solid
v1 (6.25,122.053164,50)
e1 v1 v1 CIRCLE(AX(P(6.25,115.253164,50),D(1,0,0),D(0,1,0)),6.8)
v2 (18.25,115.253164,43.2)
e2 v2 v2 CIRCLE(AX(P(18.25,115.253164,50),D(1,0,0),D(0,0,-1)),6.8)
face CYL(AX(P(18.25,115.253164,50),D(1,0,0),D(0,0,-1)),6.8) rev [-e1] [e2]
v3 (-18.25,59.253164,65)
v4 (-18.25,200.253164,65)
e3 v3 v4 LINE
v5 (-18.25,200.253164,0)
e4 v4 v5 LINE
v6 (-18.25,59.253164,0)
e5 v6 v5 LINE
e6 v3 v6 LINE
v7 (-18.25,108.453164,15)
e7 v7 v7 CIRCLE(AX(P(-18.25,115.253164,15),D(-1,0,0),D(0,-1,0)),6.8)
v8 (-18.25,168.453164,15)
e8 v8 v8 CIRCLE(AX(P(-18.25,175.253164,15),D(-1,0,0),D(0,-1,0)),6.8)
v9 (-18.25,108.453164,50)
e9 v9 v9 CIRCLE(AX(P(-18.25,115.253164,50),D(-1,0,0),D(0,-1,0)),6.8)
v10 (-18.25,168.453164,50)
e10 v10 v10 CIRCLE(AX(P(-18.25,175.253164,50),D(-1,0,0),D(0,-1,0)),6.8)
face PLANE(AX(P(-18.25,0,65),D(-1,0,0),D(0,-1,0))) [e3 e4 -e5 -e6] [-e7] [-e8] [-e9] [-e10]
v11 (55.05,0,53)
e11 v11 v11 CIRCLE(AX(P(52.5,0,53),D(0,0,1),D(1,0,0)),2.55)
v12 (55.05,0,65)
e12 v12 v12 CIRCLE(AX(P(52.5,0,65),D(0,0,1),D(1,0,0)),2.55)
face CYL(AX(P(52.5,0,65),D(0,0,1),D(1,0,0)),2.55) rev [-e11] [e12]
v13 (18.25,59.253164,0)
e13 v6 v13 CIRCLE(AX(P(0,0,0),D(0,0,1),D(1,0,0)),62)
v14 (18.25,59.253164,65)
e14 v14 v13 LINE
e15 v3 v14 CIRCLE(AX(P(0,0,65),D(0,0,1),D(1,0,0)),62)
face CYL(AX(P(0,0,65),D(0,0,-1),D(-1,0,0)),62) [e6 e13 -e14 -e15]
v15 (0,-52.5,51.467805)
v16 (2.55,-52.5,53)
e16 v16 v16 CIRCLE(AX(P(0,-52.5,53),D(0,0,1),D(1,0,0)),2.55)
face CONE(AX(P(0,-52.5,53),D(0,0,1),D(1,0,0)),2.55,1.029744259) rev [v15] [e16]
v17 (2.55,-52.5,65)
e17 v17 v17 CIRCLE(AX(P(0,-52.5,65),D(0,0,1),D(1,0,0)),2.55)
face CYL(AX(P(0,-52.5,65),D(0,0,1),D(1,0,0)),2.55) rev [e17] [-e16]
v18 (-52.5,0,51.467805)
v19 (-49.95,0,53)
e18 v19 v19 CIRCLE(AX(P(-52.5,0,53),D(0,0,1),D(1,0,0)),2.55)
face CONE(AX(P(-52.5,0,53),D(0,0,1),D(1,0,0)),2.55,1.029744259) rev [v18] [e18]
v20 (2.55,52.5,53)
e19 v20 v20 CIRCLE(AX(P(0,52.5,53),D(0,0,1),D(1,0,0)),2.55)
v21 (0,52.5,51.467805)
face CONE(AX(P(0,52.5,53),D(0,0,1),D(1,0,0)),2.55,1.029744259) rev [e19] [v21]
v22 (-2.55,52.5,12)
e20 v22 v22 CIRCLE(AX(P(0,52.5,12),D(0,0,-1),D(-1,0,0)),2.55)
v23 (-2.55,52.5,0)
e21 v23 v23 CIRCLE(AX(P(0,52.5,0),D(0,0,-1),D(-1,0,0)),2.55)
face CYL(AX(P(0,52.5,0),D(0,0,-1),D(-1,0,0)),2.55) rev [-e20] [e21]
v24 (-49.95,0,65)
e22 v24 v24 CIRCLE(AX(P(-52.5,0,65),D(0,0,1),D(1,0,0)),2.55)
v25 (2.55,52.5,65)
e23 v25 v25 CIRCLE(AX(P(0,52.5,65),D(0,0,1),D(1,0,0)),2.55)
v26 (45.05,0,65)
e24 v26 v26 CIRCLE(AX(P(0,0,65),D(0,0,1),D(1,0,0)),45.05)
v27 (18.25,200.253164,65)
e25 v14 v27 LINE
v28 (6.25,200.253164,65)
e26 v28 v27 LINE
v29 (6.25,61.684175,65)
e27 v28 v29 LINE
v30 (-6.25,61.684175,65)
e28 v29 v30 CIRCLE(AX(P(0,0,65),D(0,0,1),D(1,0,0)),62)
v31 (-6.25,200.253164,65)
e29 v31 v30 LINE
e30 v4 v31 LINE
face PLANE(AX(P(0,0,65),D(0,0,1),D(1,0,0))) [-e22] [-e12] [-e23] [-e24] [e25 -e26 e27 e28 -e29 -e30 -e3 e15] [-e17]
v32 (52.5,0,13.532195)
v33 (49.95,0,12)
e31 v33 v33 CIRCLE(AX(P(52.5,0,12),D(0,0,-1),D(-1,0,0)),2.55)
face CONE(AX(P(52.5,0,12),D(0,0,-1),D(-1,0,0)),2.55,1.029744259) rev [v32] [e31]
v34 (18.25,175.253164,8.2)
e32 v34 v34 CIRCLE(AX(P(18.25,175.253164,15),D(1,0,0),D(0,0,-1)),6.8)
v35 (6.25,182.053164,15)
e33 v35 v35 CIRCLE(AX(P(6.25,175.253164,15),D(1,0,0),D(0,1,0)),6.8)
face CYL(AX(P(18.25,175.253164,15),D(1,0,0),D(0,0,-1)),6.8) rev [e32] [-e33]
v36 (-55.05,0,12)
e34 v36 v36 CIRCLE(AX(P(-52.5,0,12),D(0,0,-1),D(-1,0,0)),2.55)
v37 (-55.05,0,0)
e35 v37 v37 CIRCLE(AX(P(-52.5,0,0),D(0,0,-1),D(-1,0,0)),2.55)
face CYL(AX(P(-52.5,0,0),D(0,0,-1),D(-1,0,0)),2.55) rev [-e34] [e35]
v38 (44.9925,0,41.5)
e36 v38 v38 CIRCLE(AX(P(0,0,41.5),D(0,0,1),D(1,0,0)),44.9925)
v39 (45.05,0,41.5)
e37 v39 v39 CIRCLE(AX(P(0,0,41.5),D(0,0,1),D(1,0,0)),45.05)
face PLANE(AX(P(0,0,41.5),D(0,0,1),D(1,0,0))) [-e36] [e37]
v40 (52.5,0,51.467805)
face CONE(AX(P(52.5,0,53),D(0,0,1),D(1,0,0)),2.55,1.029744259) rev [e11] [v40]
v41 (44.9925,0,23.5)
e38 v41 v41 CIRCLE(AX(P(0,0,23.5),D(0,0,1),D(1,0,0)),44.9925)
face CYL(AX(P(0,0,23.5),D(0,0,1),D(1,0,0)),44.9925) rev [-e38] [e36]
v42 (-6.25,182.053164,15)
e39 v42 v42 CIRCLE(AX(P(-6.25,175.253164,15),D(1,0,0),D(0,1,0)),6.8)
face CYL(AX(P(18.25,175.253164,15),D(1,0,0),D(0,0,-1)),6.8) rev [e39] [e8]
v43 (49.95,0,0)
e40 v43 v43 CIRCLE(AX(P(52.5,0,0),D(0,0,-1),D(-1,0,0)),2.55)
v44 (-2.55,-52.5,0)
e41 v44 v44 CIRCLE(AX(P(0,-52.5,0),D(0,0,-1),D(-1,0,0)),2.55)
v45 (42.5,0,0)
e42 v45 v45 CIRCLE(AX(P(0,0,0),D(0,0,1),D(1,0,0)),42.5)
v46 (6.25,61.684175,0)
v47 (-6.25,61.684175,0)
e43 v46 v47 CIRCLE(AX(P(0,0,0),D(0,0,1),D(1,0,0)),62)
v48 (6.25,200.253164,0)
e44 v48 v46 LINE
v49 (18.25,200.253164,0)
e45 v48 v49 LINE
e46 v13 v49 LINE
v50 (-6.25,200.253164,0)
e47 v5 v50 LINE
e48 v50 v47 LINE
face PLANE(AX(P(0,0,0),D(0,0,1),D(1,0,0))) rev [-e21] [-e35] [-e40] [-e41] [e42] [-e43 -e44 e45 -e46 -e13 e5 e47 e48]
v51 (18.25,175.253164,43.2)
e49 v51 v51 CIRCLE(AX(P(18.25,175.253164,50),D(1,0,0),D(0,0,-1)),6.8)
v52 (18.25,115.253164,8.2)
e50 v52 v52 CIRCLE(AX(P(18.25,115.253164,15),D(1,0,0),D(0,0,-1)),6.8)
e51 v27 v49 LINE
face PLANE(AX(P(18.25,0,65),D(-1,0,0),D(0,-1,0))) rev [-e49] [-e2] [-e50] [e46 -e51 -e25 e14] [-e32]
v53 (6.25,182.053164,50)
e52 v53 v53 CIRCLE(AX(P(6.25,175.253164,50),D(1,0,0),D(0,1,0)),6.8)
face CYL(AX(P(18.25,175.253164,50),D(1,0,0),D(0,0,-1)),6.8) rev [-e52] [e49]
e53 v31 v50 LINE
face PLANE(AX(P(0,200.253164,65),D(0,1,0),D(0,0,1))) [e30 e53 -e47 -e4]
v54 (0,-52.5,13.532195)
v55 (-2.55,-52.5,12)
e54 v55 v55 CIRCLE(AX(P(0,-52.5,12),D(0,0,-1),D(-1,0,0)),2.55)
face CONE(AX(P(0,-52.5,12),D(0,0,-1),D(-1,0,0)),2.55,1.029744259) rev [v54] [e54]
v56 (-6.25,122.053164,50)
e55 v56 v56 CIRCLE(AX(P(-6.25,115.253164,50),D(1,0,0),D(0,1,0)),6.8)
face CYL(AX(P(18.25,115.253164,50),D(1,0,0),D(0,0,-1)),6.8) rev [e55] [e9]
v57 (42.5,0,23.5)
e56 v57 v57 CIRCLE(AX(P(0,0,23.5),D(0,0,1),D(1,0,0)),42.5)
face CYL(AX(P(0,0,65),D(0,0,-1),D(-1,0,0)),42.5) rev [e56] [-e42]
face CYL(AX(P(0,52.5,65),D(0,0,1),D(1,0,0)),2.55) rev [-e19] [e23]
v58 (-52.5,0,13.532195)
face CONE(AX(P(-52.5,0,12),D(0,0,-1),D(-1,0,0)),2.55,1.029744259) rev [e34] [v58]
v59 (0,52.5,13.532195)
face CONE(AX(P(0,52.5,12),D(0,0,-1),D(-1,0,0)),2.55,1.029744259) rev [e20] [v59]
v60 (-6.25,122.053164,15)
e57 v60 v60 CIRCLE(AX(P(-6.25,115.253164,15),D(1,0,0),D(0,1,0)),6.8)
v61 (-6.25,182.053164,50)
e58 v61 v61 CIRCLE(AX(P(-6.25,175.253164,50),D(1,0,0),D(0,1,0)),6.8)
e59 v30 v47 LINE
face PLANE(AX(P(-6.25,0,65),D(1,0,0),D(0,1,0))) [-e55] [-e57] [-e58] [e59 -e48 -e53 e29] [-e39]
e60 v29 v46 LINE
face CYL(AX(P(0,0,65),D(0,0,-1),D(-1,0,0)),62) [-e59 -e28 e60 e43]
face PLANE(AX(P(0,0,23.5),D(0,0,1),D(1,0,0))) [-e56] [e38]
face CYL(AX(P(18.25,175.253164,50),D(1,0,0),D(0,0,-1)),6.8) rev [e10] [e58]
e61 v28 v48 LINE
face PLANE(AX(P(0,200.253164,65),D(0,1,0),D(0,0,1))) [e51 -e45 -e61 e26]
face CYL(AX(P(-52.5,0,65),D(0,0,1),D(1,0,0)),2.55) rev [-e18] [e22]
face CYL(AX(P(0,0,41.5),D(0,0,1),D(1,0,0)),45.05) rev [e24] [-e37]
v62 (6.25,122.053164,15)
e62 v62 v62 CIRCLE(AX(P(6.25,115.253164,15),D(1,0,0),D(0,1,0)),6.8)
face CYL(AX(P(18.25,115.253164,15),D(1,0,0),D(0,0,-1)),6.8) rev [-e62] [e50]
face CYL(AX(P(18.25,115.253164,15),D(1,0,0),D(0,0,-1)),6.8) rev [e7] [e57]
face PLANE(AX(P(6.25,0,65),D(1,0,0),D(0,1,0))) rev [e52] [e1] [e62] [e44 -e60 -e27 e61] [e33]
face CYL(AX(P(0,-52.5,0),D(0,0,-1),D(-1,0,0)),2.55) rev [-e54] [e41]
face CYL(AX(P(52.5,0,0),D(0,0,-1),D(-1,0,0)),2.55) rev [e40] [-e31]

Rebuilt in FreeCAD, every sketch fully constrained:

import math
import FreeCAD as App
import Part
import Sketcher
from FreeCAD import Vector
Q = App.Units.Quantity

doc = App.newDocument("Part")
body = doc.addObject("PartDesign::Body", "Body")

sketch1 = body.newObject("Sketcher::SketchObject", "Sketch")
sketch1.AttachmentSupport = (doc.getObject("XY_Plane"), [""])
sketch1.MapMode = "FlatFace"
sketch1.addGeometry([
    Part.LineSegment(Vector(6, 200, 0), Vector(6, 62, 0)),
    Part.ArcOfCircle(Part.Circle(Vector(0, 0, 0), Vector(0, 0, 1), 62), math.radians(84.21), math.radians(95.79)),
    Part.LineSegment(Vector(-6, 62, 0), Vector(-6, 200, 0)),
    Part.LineSegment(Vector(-6, 200, 0), Vector(-18, 200, 0)),
    Part.LineSegment(Vector(-18, 200, 0), Vector(-18, 59, 0)),
    Part.ArcOfCircle(Part.Circle(Vector(0, 0, 0), Vector(0, 0, 1), 62), math.radians(107), math.radians(433)),
    Part.LineSegment(Vector(18, 59, 0), Vector(18, 200, 0)),
    Part.LineSegment(Vector(18, 200, 0), Vector(6, 200, 0)),
    Part.Circle(Vector(0, 0, 0), Vector(0, 0, 1), 42),
], False)
sketch1.addConstraint([
    Sketcher.Constraint("Coincident", 0, 2, 1, 1),
    Sketcher.Constraint("Coincident", 1, 2, 2, 1),
    Sketcher.Constraint("Coincident", 2, 2, 3, 1),
    Sketcher.Constraint("Coincident", 3, 2, 4, 1),
    Sketcher.Constraint("Coincident", 4, 2, 5, 1),
    Sketcher.Constraint("Coincident", 5, 2, 6, 1),
    Sketcher.Constraint("Coincident", 6, 2, 7, 1),
    Sketcher.Constraint("Coincident", 7, 2, 0, 1),
    Sketcher.Constraint("Vertical", 0),
    Sketcher.Constraint("Vertical", 2),
    Sketcher.Constraint("Horizontal", 3),
    Sketcher.Constraint("Vertical", 4),
    Sketcher.Constraint("Vertical", 6),
    Sketcher.Constraint("Horizontal", 7),
    Sketcher.Constraint("Coincident", 1, 3, -1, 1),
    Sketcher.Constraint("Coincident", 5, 3, -1, 1),
    Sketcher.Constraint("Coincident", 8, 3, -1, 1),
    Sketcher.Constraint("Equal", 1, 5),
    Sketcher.Constraint("Symmetric", 3, 2, 6, 2, -2),
    Sketcher.Constraint("Horizontal", 0, 2, 1, 2),
    Sketcher.Constraint("Diameter", 8, Q("85 mm")),
    Sketcher.Constraint("Radius", 1, Q("62 mm")),
    Sketcher.Constraint("DistanceX", 3, 2, 3, 1, Q("12 mm")),
    Sketcher.Constraint("DistanceY", 4, 2, 4, 1, Q("141 mm")),
    Sketcher.Constraint("DistanceX", 1, 2, 0, 2, Q("12.5 mm")),
])
pad1 = body.newObject("PartDesign::Pad", "Pad")
pad1.Profile = sketch1
pad1.Length = 65

sketch2 = body.newObject("Sketcher::SketchObject", "Sketch001")
sketch2.AttachmentSupport = (doc.getObject("XY_Plane"), [""])
sketch2.MapMode = "FlatFace"
sketch2.AttachmentOffset = App.Placement(Vector(0, 0, 65), App.Rotation())
sketch2.addGeometry(Part.Circle(Vector(0, 0, 0), Vector(0, 0, 1), 45), False)
sketch2.addConstraint([
    Sketcher.Constraint("Coincident", 0, 3, -1, 1),
    Sketcher.Constraint("Diameter", 0, Q("90.1 mm")),
])
pocket1 = body.newObject("PartDesign::Pocket", "Pocket")
pocket1.Profile = sketch2
pocket1.Length = 23.5

sketch3 = body.newObject("Sketcher::SketchObject", "Sketch002")
sketch3.AttachmentSupport = (doc.getObject("XY_Plane"), [""])
sketch3.MapMode = "FlatFace"
sketch3.AttachmentOffset = App.Placement(Vector(0, 0, 41.5), App.Rotation())
sketch3.addGeometry(Part.Circle(Vector(0, 0, 0), Vector(0, 0, 1), 45), False)
sketch3.addConstraint([
    Sketcher.Constraint("Coincident", 0, 3, -1, 1),
    Sketcher.Constraint("Diameter", 0, Q("89.985 mm")),
])
pocket2 = body.newObject("PartDesign::Pocket", "Pocket001")
pocket2.Profile = sketch3
pocket2.Length = 18

sketch4 = body.newObject("Sketcher::SketchObject", "Sketch003")
sketch4.AttachmentSupport = (doc.getObject("XY_Plane"), [""])
sketch4.MapMode = "FlatFace"
sketch4.AttachmentOffset = App.Placement(Vector(0, 0, 65), App.Rotation())
sketch4.addGeometry([
    Part.Circle(Vector(0, -52.5, 0), Vector(0, 0, 1), 2.5),
    Part.Circle(Vector(-52.5, 0, 0), Vector(0, 0, 1), 2.5),
    Part.Circle(Vector(0, 52.5, 0), Vector(0, 0, 1), 2.5),
    Part.Circle(Vector(52.5, 0, 0), Vector(0, 0, 1), 2.5),
], False)
sketch4.addConstraint([
    Sketcher.Constraint("Equal", 0, 1),
    Sketcher.Constraint("Equal", 1, 2),
    Sketcher.Constraint("Equal", 2, 3),
    Sketcher.Constraint("Symmetric", 0, 3, 2, 3, -1, 1),
    Sketcher.Constraint("Symmetric", 1, 3, 3, 3, -1, 1),
    Sketcher.Constraint("PointOnObject", 0, 3, -2),
    Sketcher.Constraint("PointOnObject", 1, 3, -1),
    Sketcher.Constraint("Diameter", 0, Q("5.1 mm")),
    Sketcher.Constraint("DistanceY", 0, 3, 2, 3, Q("105 mm")),
    Sketcher.Constraint("DistanceX", 1, 3, 3, 3, Q("105 mm")),
])
doc.recompute()
hole = body.newObject("PartDesign::Hole", "Hole")
hole.Profile = sketch4
hole.ThreadType = "None"
hole.Diameter = 5.1
hole.DepthType = "Dimension"
hole.Depth = 12
hole.DrillPoint = "Angled"
hole.DrillPointAngle = 118

sketch5 = body.newObject("Sketcher::SketchObject", "Sketch004")
sketch5.AttachmentSupport = (doc.getObject("XY_Plane"), [""])
sketch5.MapMode = "FlatFace"
sketch5.addGeometry([
    Part.Circle(Vector(52.5, 0, 0), Vector(0, 0, 1), 2.5),
    Part.Circle(Vector(0, 52.5, 0), Vector(0, 0, 1), 2.5),
    Part.Circle(Vector(-52.5, 0, 0), Vector(0, 0, 1), 2.5),
    Part.Circle(Vector(0, -52.5, 0), Vector(0, 0, 1), 2.5),
], False)
sketch5.addConstraint([
    Sketcher.Constraint("Equal", 0, 1),
    Sketcher.Constraint("Equal", 1, 2),
    Sketcher.Constraint("Equal", 2, 3),
    Sketcher.Constraint("Symmetric", 0, 3, 2, 3, -1, 1),
    Sketcher.Constraint("Symmetric", 1, 3, 3, 3, -1, 1),
    Sketcher.Constraint("PointOnObject", 0, 3, -1),
    Sketcher.Constraint("PointOnObject", 1, 3, -2),
    Sketcher.Constraint("Diameter", 0, Q("5.1 mm")),
    Sketcher.Constraint("DistanceX", 2, 3, 0, 3, Q("105 mm")),
    Sketcher.Constraint("DistanceY", 3, 3, 1, 3, Q("105 mm")),
])
doc.recompute()
hole2 = body.newObject("PartDesign::Hole", "Hole001")
hole2.Profile = sketch5
hole2.ThreadType = "None"
hole2.Diameter = 5.1
hole2.DepthType = "Dimension"
hole2.Depth = 12
hole2.DrillPoint = "Angled"
hole2.DrillPointAngle = 118
hole2.Reversed = True

sketch6 = body.newObject("Sketcher::SketchObject", "Sketch005")
sketch6.AttachmentSupport = (doc.getObject("YZ_Plane"), [""])
sketch6.MapMode = "FlatFace"
sketch6.AttachmentOffset = App.Placement(Vector(0, 0, 18.25), App.Rotation())
sketch6.addGeometry([
    Part.Circle(Vector(175, 50, 0), Vector(0, 0, 1), 7),
    Part.Circle(Vector(175, 15, 0), Vector(0, 0, 1), 7),
    Part.Circle(Vector(115, 15, 0), Vector(0, 0, 1), 7),
    Part.Circle(Vector(115, 50, 0), Vector(0, 0, 1), 7),
], False)
sketch6.addConstraint([
    Sketcher.Constraint("Equal", 0, 1),
    Sketcher.Constraint("Equal", 1, 2),
    Sketcher.Constraint("Equal", 2, 3),
    Sketcher.Constraint("Horizontal", 1, 3, 2, 3),
    Sketcher.Constraint("Horizontal", 0, 3, 3, 3),
    Sketcher.Constraint("Vertical", 0, 3, 1, 3),
    Sketcher.Constraint("Vertical", 2, 3, 3, 3),
    Sketcher.Constraint("Diameter", 0, Q("13.6 mm")),
    Sketcher.Constraint("DistanceY", -1, 1, 0, 3, Q("50 mm")),
    Sketcher.Constraint("DistanceY", -1, 1, 1, 3, Q("15 mm")),
    Sketcher.Constraint("DistanceX", 2, 3, 1, 3, Q("60 mm")),
    Sketcher.Constraint("DistanceX", -1, 1, 0, 3, Q("175.253164 mm")),
])
doc.recompute()
hole3 = body.newObject("PartDesign::Hole", "Hole002")
hole3.Profile = sketch6
hole3.ThreadType = "None"
hole3.Diameter = 13.6
hole3.DepthType = "ThroughAll"

doc.recompute()
